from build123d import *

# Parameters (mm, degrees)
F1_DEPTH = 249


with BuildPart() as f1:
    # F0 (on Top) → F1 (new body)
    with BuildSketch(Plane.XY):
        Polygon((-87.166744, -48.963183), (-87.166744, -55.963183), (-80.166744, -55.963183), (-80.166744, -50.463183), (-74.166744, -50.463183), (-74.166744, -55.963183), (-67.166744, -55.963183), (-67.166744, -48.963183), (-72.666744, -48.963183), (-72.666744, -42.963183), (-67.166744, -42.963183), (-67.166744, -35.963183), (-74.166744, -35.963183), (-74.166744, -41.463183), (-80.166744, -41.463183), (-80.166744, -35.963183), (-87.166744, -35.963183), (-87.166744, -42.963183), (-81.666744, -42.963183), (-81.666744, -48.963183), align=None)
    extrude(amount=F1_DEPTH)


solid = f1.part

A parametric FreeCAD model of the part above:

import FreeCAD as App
import Part
import Sketcher
Q = App.Units.Quantity


def add_polygon(sketch, points):
    """Adds a closed chain of lines whose ends are joined by coincident constraints."""
    first, n = sketch.GeometryCount, len(points)
    for a, b in zip(points, points[1:] + points[:1]):
        sketch.addGeometry(Part.LineSegment(App.Vector(*a, 0), App.Vector(*b, 0)), False)
    for i in range(n):
        sketch.addConstraint(Sketcher.Constraint("Coincident", first + i, 2, first + (i + 1) % n, 1))

doc = App.newDocument("Part")
body = doc.addObject("PartDesign::Body", "Body")

# Sketch on XY plane
sketch1 = body.newObject("Sketcher::SketchObject", "Sketch")
sketch1.AttachmentSupport = (doc.getObject("XY_Plane"), [""])
sketch1.MapMode = "FlatFace"
add_polygon(sketch1, [(-87, -49), (-87, -56), (-80, -56), (-80, -50), (-74, -50), (-74, -56), (-67, -56), (-67, -49), (-73, -49), (-73, -43), (-67, -43), (-67, -36), (-74, -36), (-74, -41), (-80, -41), (-80, -36), (-87, -36), (-87, -43), (-82, -43), (-82, -49)])  # lines 0-19
sketch1.addConstraint(Sketcher.Constraint("Vertical", 0))
sketch1.addConstraint(Sketcher.Constraint("Horizontal", 1))
sketch1.addConstraint(Sketcher.Constraint("Vertical", 2))
sketch1.addConstraint(Sketcher.Constraint("Horizontal", 3))
sketch1.addConstraint(Sketcher.Constraint("Vertical", 4))
sketch1.addConstraint(Sketcher.Constraint("Horizontal", 5))
sketch1.addConstraint(Sketcher.Constraint("Vertical", 6))
sketch1.addConstraint(Sketcher.Constraint("Horizontal", 7))
sketch1.addConstraint(Sketcher.Constraint("Vertical", 8))
sketch1.addConstraint(Sketcher.Constraint("Horizontal", 9))
sketch1.addConstraint(Sketcher.Constraint("Vertical", 10))
sketch1.addConstraint(Sketcher.Constraint("Horizontal", 11))
sketch1.addConstraint(Sketcher.Constraint("Vertical", 12))
sketch1.addConstraint(Sketcher.Constraint("Horizontal", 13))
sketch1.addConstraint(Sketcher.Constraint("Vertical", 14))
sketch1.addConstraint(Sketcher.Constraint("Horizontal", 15))
sketch1.addConstraint(Sketcher.Constraint("Vertical", 16))
sketch1.addConstraint(Sketcher.Constraint("Horizontal", 17))
sketch1.addConstraint(Sketcher.Constraint("Vertical", 18))
sketch1.addConstraint(Sketcher.Constraint("Horizontal", 19))
sketch1.addConstraint(Sketcher.Constraint("Horizontal", 1, 2, 4, 2))
sketch1.addConstraint(Sketcher.Constraint("Horizontal", 11, 2, 14, 2))
sketch1.addConstraint(Sketcher.Constraint("Horizontal", 9, 2, 16, 2))
sketch1.addConstraint(Sketcher.Constraint("Horizontal", 7, 2, 18, 2))
sketch1.addConstraint(Sketcher.Constraint("Vertical", 6, 2, 9, 2))
sketch1.addConstraint(Sketcher.Constraint("Vertical", 4, 2, 11, 2))
sketch1.addConstraint(Sketcher.Constraint("Vertical", 2, 2, 13, 2))
sketch1.addConstraint(Sketcher.Constraint("Vertical", 0, 2, 15, 2))
sketch1.addConstraint(Sketcher.Constraint("Equal", 1, 5))
sketch1.addConstraint(Sketcher.Constraint("Equal", 9, 17))
sketch1.addConstraint(Sketcher.Constraint("Equal", 15, 0))
sketch1.addConstraint(Sketcher.Constraint("Equal", 19, 2))
sketch1.addConstraint(Sketcher.Constraint("Equal", 13, 8))
sketch1.addConstraint(Sketcher.Constraint("Equal", 6, 10))
sketch1.addConstraint(Sketcher.Constraint("Equal", 4, 12))
sketch1.addConstraint(Sketcher.Constraint("DistanceX", 1, 1, 1, 2, Q("7 mm")))
sketch1.addConstraint(Sketcher.Constraint("DistanceX", 3, 1, 3, 2, Q("6 mm")))
sketch1.addConstraint(Sketcher.Constraint("DistanceX", 7, 2, 7, 1, Q("5.5 mm")))
sketch1.addConstraint(Sketcher.Constraint("DistanceX", 0, 2, -1, 1, Q("87.166744 mm")))
sketch1.addConstraint(Sketcher.Constraint("DistanceY", 0, 2, -1, 1, Q("55.963183 mm")))
pad1 = body.newObject("PartDesign::Pad", "Pad")
pad1.Profile = sketch1
pad1.Length = 249

doc.recompute()
